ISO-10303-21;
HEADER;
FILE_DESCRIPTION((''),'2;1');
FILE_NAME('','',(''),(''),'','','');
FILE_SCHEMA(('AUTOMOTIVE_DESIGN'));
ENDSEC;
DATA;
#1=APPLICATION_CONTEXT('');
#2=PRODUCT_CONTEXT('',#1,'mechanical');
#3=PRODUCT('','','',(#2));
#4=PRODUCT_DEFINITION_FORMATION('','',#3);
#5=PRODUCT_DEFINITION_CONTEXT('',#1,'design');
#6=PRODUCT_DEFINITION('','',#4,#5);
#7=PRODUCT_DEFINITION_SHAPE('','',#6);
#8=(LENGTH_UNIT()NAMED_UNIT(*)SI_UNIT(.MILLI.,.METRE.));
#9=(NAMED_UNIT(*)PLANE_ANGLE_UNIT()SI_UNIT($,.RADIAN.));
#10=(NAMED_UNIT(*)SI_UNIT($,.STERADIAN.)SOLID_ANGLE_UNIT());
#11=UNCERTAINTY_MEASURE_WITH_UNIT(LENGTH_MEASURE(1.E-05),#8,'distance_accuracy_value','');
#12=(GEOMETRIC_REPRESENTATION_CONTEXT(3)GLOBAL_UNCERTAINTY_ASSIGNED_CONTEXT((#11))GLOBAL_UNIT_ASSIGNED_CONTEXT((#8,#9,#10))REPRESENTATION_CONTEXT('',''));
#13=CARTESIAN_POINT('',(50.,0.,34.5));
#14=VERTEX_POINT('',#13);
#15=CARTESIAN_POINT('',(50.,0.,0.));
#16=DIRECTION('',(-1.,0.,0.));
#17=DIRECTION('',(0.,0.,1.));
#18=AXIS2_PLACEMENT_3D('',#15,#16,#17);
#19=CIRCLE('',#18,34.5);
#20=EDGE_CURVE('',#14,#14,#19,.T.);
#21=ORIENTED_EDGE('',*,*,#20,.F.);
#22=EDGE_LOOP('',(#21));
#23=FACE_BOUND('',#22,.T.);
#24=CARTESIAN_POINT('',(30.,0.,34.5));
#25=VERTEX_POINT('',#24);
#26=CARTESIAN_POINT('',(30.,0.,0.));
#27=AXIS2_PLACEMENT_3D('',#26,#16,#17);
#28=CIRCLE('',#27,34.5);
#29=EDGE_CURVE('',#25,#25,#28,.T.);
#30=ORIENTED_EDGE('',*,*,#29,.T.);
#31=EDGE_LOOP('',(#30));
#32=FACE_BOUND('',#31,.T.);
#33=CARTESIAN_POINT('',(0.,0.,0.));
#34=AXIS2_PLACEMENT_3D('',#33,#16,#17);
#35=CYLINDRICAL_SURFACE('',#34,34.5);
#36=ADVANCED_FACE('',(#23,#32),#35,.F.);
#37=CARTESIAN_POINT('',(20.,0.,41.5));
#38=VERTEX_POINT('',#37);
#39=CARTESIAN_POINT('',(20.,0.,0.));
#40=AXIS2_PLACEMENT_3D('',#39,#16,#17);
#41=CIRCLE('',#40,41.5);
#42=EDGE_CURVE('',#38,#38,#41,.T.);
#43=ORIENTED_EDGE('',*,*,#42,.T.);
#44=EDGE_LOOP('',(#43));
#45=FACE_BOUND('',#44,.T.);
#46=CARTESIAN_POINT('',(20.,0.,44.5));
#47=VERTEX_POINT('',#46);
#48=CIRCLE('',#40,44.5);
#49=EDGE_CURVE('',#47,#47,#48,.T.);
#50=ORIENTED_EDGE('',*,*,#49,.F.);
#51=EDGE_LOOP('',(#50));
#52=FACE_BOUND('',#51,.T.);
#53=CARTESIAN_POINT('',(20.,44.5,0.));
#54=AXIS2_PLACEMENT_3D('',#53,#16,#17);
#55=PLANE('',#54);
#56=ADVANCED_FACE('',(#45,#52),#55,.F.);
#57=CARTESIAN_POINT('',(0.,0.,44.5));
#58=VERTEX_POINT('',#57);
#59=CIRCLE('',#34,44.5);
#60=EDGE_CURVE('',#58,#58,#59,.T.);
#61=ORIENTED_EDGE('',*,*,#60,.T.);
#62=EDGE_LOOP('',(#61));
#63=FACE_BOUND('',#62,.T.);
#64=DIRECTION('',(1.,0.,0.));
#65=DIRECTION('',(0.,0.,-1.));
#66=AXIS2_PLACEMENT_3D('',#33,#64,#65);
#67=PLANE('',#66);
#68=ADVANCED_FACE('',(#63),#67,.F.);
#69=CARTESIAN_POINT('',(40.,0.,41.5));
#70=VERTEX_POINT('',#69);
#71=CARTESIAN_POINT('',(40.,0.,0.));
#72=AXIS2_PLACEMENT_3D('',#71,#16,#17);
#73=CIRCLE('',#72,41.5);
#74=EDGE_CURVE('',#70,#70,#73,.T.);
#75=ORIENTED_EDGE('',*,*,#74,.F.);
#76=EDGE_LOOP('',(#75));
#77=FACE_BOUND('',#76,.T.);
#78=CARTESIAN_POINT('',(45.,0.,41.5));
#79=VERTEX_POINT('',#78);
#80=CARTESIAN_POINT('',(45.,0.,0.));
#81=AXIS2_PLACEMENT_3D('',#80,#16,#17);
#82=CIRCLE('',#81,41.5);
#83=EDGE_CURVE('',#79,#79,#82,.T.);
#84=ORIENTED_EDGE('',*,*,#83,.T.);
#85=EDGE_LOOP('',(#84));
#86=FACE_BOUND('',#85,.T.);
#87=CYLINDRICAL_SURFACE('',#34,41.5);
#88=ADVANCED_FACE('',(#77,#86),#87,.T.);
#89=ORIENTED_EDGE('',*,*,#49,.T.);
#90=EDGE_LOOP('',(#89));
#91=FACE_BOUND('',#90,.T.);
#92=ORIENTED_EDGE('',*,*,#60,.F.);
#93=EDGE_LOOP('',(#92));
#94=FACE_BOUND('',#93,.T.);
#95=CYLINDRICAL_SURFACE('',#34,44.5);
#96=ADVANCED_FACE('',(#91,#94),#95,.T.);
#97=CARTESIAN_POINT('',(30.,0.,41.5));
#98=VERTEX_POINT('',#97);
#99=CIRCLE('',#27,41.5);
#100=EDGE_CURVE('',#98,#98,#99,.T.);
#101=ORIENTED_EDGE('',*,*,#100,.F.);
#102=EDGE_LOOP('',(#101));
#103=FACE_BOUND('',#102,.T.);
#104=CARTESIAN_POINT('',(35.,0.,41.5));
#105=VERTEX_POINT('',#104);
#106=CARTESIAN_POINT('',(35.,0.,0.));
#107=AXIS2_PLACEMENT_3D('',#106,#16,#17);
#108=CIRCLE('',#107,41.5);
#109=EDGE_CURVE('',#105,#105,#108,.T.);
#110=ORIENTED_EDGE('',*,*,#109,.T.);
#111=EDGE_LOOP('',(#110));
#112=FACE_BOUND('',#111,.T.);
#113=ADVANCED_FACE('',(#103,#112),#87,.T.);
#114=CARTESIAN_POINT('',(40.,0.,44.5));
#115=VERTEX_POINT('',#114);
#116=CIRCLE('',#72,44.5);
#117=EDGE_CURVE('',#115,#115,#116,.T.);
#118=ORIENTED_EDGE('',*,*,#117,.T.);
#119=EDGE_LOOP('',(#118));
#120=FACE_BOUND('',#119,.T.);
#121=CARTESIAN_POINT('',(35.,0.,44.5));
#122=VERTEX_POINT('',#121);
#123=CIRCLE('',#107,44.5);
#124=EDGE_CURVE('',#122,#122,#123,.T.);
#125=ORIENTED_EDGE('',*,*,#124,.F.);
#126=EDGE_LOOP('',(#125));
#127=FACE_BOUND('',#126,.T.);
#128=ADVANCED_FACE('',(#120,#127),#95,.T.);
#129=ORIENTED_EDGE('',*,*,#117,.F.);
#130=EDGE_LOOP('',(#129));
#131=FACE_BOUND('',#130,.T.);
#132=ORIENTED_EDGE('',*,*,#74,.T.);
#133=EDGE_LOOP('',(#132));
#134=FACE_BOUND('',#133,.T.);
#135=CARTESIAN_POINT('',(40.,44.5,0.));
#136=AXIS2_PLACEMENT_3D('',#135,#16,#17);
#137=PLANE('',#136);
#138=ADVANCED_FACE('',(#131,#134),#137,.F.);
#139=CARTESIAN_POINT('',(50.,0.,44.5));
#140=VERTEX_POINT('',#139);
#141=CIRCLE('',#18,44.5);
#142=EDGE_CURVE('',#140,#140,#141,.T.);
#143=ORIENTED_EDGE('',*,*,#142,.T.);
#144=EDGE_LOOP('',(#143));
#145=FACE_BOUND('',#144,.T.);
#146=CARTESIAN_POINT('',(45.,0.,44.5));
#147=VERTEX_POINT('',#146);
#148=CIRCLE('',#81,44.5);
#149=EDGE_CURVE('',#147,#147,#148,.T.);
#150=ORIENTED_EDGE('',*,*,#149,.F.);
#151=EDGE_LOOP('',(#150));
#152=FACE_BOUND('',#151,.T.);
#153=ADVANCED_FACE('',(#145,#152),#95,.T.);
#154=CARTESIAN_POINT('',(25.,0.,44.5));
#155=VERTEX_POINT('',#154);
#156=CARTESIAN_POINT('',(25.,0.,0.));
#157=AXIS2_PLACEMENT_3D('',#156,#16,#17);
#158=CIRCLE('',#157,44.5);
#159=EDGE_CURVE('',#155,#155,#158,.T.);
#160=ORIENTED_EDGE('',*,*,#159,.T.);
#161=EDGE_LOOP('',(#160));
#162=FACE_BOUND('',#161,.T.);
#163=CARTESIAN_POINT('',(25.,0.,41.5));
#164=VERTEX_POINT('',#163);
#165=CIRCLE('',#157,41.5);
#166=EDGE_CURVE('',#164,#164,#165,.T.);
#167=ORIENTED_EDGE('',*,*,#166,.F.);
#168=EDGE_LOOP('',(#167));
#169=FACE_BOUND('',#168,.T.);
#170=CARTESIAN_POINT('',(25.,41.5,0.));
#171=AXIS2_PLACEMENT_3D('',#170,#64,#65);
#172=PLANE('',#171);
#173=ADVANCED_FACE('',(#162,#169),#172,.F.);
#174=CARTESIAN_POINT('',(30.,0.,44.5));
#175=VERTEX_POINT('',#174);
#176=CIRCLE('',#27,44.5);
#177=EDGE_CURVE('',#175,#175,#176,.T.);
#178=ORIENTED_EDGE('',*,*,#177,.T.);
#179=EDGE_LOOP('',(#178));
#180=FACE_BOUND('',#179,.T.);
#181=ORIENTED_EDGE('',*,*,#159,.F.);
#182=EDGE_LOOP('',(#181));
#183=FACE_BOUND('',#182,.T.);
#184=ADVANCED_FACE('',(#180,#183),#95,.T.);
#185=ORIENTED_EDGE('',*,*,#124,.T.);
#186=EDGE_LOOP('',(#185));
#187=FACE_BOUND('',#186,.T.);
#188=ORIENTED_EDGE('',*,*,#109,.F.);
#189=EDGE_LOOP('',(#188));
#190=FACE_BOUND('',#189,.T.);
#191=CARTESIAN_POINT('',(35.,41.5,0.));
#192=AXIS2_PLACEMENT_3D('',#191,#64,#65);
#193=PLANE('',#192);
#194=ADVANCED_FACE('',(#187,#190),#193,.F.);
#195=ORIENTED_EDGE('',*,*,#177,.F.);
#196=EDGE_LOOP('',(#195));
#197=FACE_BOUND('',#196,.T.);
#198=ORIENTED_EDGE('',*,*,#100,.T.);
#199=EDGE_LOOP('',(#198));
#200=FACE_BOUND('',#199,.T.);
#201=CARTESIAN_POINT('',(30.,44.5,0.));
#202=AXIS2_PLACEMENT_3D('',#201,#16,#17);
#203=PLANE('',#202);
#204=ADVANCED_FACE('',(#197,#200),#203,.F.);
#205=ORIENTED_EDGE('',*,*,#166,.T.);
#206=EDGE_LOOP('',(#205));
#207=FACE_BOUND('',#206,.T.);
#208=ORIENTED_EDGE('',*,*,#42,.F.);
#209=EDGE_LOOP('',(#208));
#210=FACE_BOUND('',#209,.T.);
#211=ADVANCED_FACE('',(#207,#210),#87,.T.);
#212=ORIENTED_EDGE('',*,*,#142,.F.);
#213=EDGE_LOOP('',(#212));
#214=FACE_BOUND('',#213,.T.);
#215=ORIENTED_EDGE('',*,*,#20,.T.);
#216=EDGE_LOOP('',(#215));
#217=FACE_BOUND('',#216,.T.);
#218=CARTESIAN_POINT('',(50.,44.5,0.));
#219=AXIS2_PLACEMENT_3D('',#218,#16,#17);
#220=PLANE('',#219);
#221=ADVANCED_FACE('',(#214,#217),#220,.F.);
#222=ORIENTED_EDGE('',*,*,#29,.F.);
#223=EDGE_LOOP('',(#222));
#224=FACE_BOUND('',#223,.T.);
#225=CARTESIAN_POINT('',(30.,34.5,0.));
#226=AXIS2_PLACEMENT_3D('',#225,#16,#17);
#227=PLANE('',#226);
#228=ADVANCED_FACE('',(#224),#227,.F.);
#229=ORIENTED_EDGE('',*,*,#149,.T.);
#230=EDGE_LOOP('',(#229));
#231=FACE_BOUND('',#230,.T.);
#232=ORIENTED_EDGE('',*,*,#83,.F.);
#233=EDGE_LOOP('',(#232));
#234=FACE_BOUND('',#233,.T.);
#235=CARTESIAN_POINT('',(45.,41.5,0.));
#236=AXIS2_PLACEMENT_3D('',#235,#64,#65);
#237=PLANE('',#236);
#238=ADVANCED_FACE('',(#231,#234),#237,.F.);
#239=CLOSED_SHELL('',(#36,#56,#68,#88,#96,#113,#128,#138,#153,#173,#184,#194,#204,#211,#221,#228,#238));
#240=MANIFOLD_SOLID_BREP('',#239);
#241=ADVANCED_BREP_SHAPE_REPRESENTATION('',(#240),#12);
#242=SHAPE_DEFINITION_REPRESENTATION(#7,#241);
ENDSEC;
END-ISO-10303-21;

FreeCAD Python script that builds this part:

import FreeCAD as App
import Part
import Sketcher
from FreeCAD import Vector

doc = App.newDocument("Part")
params = doc.addObject("Spreadsheet::Sheet", "Params")
for row, (alias, value) in enumerate([
    ("sketch1_width", "30 mm"),
    ("sketch1_height", "10 mm"),
    ("sketch1_height2", "3 mm"),
    ("sketch1_height3", "44.5 mm"),
    ("revolution_angle", "360 deg"),
], start=1):
    params.set(f"A{row}", alias)
    params.set(f"B{row}", "=" + value)
    params.setAlias(f"B{row}", alias)

body = doc.addObject("PartDesign::Body", "Body")

sketch1 = body.newObject("Sketcher::SketchObject", "Sketch")
sketch1.AttachmentSupport = (doc.getObject("XY_Plane"), [""])
sketch1.MapMode = "FlatFace"
sketch1.addGeometry(Part.LineSegment(Vector(0, 44.5, 0), Vector(0, 0, 0)), False)
sketch1.addGeometry(Part.LineSegment(Vector(0, 0, 0), Vector(30, 0, 0)), False)
sketch1.addGeometry(Part.LineSegment(Vector(30, 0, 0), Vector(30, 34.5, 0)), False)
sketch1.addGeometry(Part.LineSegment(Vector(30, 34.5, 0), Vector(50, 34.5, 0)), False)
sketch1.addGeometry(Part.LineSegment(Vector(50, 34.5, 0), Vector(50, 44.5, 0)), False)
sketch1.addGeometry(Part.LineSegment(Vector(50, 44.5, 0), Vector(45, 44.5, 0)), False)
sketch1.addGeometry(Part.LineSegment(Vector(45, 44.5, 0), Vector(45, 41.5, 0)), False)
sketch1.addGeometry(Part.LineSegment(Vector(45, 41.5, 0), Vector(40, 41.5, 0)), False)
sketch1.addGeometry(Part.LineSegment(Vector(40, 41.5, 0), Vector(40, 44.5, 0)), False)
sketch1.addGeometry(Part.LineSegment(Vector(40, 44.5, 0), Vector(35, 44.5, 0)), False)
sketch1.addGeometry(Part.LineSegment(Vector(35, 44.5, 0), Vector(35, 41.5, 0)), False)
sketch1.addGeometry(Part.LineSegment(Vector(35, 41.5, 0), Vector(30, 41.5, 0)), False)
sketch1.addGeometry(Part.LineSegment(Vector(30, 41.5, 0), Vector(30, 44.5, 0)), False)
sketch1.addGeometry(Part.LineSegment(Vector(30, 44.5, 0), Vector(25, 44.5, 0)), False)
sketch1.addGeometry(Part.LineSegment(Vector(25, 44.5, 0), Vector(25, 41.5, 0)), False)
sketch1.addGeometry(Part.LineSegment(Vector(25, 41.5, 0), Vector(20, 41.5, 0)), False)
sketch1.addGeometry(Part.LineSegment(Vector(20, 41.5, 0), Vector(20, 44.5, 0)), False)
sketch1.addGeometry(Part.LineSegment(Vector(20, 44.5, 0), Vector(0, 44.5, 0)), False)
sketch1.addConstraint(Sketcher.Constraint("Coincident", 0, 2, 1, 1))
sketch1.addConstraint(Sketcher.Constraint("Coincident", 1, 2, 2, 1))
sketch1.addConstraint(Sketcher.Constraint("Coincident", 2, 2, 3, 1))
sketch1.addConstraint(Sketcher.Constraint("Coincident", 3, 2, 4, 1))
sketch1.addConstraint(Sketcher.Constraint("Coincident", 4, 2, 5, 1))
sketch1.addConstraint(Sketcher.Constraint("Coincident", 5, 2, 6, 1))
sketch1.addConstraint(Sketcher.Constraint("Coincident", 6, 2, 7, 1))
sketch1.addConstraint(Sketcher.Constraint("Coincident", 7, 2, 8, 1))
sketch1.addConstraint(Sketcher.Constraint("Coincident", 8, 2, 9, 1))
sketch1.addConstraint(Sketcher.Constraint("Coincident", 9, 2, 10, 1))
sketch1.addConstraint(Sketcher.Constraint("Coincident", 10, 2, 11, 1))
sketch1.addConstraint(Sketcher.Constraint("Coincident", 11, 2, 12, 1))
sketch1.addConstraint(Sketcher.Constraint("Coincident", 12, 2, 13, 1))
sketch1.addConstraint(Sketcher.Constraint("Coincident", 13, 2, 14, 1))
sketch1.addConstraint(Sketcher.Constraint("Coincident", 14, 2, 15, 1))
sketch1.addConstraint(Sketcher.Constraint("Coincident", 15, 2, 16, 1))
sketch1.addConstraint(Sketcher.Constraint("Coincident", 16, 2, 17, 1))
sketch1.addConstraint(Sketcher.Constraint("Coincident", 17, 2, 0, 1))
sketch1.addConstraint(Sketcher.Constraint("Vertical", 0))
sketch1.addConstraint(Sketcher.Constraint("Horizontal", 1))
sketch1.addConstraint(Sketcher.Constraint("Vertical", 2))
sketch1.addConstraint(Sketcher.Constraint("Horizontal", 3))
sketch1.addConstraint(Sketcher.Constraint("Vertical", 4))
sketch1.addConstraint(Sketcher.Constraint("Horizontal", 5))
sketch1.addConstraint(Sketcher.Constraint("Vertical", 6))
sketch1.addConstraint(Sketcher.Constraint("Horizontal", 7))
sketch1.addConstraint(Sketcher.Constraint("Vertical", 8))
sketch1.addConstraint(Sketcher.Constraint("Horizontal", 9))
sketch1.addConstraint(Sketcher.Constraint("Vertical", 10))
sketch1.addConstraint(Sketcher.Constraint("Horizontal", 11))
sketch1.addConstraint(Sketcher.Constraint("Vertical", 12))
sketch1.addConstraint(Sketcher.Constraint("Horizontal", 13))
sketch1.addConstraint(Sketcher.Constraint("Vertical", 14))
sketch1.addConstraint(Sketcher.Constraint("Horizontal", 15))
sketch1.addConstraint(Sketcher.Constraint("Vertical", 16))
sketch1.addConstraint(Sketcher.Constraint("Horizontal", 17))
sketch1.addConstraint(Sketcher.Constraint("Coincident", 0, 2, -1, 1))
sketch1.addConstraint(Sketcher.Constraint("Horizontal", 5, 2, 8, 2))
sketch1.addConstraint(Sketcher.Constraint("Horizontal", 7, 2, 10, 2))
sketch1.addConstraint(Sketcher.Constraint("Horizontal", 9, 2, 12, 2))
sketch1.addConstraint(Sketcher.Constraint("Horizontal", 11, 2, 14, 2))
sketch1.addConstraint(Sketcher.Constraint("Horizontal", 13, 2, 16, 2))
sketch1.addConstraint(Sketcher.Constraint("Vertical", 2, 2, 11, 2))
sketch1.addConstraint(Sketcher.Constraint("Equal", 5, 7))
sketch1.addConstraint(Sketcher.Constraint("Equal", 7, 9))
sketch1.addConstraint(Sketcher.Constraint("Equal", 9, 11))
sketch1.addConstraint(Sketcher.Constraint("Equal", 11, 13))
sketch1.addConstraint(Sketcher.Constraint("Equal", 13, 15))
sketch1.addConstraint(Sketcher.Constraint("Equal", 3, 17))
sketch1.addConstraint(Sketcher.Constraint("DistanceX", 1, 1, 1, 2, 30.0))
sketch1.addConstraint(Sketcher.Constraint("DistanceY", 4, 1, 4, 2, 10.0))
sketch1.addConstraint(Sketcher.Constraint("DistanceY", 6, 2, 6, 1, 3.0))
sketch1.addConstraint(Sketcher.Constraint("DistanceY", 0, 2, 0, 1, 44.5))
sketch1.setExpression("Constraints[49]", "Params.sketch1_width")
sketch1.setExpression("Constraints[50]", "Params.sketch1_height")
sketch1.setExpression("Constraints[51]", "Params.sketch1_height2")
sketch1.setExpression("Constraints[52]", "Params.sketch1_height3")
revolution = body.newObject("PartDesign::Revolution", "Revolution")
revolution.Profile = sketch1
revolution.ReferenceAxis = (sketch1, ["H_Axis"])
revolution.setExpression("Angle", "Params.revolution_angle")

doc.recompute()
